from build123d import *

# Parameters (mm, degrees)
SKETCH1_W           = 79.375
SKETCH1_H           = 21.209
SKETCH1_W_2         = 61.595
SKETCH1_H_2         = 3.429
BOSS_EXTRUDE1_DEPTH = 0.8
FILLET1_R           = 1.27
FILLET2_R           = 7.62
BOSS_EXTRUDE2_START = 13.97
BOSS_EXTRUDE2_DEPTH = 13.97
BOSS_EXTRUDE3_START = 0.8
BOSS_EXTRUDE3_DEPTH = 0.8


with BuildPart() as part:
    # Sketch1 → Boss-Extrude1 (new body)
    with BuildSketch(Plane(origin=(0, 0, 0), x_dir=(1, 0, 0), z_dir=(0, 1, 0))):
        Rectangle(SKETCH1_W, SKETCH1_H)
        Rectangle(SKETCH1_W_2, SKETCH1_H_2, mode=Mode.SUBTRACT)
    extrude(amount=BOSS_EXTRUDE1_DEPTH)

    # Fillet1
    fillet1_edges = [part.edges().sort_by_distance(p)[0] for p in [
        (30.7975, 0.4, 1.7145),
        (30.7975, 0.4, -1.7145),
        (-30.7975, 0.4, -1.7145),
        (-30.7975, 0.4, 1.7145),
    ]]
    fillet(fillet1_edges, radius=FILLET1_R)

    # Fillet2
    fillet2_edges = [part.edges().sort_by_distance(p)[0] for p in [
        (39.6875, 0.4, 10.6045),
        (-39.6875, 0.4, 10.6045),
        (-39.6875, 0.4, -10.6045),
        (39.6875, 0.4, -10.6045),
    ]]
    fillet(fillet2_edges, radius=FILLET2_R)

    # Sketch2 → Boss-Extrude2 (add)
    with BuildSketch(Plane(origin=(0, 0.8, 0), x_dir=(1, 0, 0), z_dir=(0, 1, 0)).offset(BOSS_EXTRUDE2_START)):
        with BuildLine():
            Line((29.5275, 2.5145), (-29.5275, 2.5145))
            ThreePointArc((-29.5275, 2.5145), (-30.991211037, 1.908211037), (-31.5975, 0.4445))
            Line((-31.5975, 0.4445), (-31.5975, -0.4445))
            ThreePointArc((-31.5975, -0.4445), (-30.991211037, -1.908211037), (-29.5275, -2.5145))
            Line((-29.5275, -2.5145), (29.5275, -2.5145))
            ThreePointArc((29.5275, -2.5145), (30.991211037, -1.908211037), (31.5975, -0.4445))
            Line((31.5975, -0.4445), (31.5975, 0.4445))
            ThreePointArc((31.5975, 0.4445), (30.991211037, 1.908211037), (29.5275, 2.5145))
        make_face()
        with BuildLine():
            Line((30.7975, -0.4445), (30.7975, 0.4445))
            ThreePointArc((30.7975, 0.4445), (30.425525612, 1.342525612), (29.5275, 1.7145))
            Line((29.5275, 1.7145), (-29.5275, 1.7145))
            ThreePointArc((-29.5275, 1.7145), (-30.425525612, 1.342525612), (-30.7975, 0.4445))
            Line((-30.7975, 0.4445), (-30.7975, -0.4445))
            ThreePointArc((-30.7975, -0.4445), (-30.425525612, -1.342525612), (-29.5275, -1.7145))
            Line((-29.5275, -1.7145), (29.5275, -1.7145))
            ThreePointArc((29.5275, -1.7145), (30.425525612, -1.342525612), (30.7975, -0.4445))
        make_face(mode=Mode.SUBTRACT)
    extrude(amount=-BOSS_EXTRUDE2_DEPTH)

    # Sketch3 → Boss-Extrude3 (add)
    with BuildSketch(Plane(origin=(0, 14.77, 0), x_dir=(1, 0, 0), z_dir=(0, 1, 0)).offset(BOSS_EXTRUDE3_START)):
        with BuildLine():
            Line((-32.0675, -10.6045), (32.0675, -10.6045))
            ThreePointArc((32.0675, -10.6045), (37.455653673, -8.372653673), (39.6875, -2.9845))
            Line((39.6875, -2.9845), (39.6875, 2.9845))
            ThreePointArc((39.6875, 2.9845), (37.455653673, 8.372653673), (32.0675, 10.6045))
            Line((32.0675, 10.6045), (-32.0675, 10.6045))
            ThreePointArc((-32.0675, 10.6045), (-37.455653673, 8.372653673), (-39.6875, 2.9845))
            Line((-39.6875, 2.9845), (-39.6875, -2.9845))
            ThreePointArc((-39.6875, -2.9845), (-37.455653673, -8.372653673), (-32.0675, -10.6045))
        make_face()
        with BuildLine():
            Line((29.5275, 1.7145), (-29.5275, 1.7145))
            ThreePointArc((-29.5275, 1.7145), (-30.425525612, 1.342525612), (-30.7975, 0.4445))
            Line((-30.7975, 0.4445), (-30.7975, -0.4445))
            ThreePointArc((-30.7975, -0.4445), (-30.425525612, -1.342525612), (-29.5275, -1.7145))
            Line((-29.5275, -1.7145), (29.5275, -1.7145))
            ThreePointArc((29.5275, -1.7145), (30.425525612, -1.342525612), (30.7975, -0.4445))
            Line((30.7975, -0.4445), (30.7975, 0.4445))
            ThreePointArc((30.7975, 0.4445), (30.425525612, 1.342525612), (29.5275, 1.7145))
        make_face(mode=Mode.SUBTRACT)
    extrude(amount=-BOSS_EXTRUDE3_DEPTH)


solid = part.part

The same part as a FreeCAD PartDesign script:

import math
import FreeCAD as App
import Part
import Sketcher

V = App.Vector
Q = App.Units.Quantity


def edges_at(feature, points):
    """Names of the edges that pass closest to the given points."""
    edges = feature.Shape.Edges
    near = lambda p: min(range(len(edges)), key=lambda i: edges[i].distToShape(Part.Vertex(*p))[0])
    return sorted({f"Edge{near(p) + 1}" for p in points})

doc = App.newDocument("Part")
body = doc.addObject("PartDesign::Body", "Body")

sketch1 = body.newObject("Sketcher::SketchObject", "Sketch")
sketch1.AttachmentSupport = (doc.getObject("XZ_Plane"), [""])
sketch1.MapMode = "FlatFace"
sketch1.addGeometry([
    Part.LineSegment(V(-39.6875, -10.6045, 0), V(-39.6875, 10.6045, 0)),
    Part.LineSegment(V(-39.6875, 10.6045, 0), V(39.6875, 10.6045, 0)),
    Part.LineSegment(V(39.6875, 10.6045, 0), V(39.6875, -10.6045, 0)),
    Part.LineSegment(V(39.6875, -10.6045, 0), V(-39.6875, -10.6045, 0)),
    Part.LineSegment(V(30.7975, 1.7145, 0), V(-30.7975, 1.7145, 0)),
    Part.LineSegment(V(-30.7975, 1.7145, 0), V(-30.7975, -1.7145, 0)),
    Part.LineSegment(V(-30.7975, -1.7145, 0), V(30.7975, -1.7145, 0)),
    Part.LineSegment(V(30.7975, -1.7145, 0), V(30.7975, 1.7145, 0)),
], False)
sketch1.addConstraint([
    Sketcher.Constraint("Coincident", 0, 2, 1, 1),
    Sketcher.Constraint("Coincident", 1, 2, 2, 1),
    Sketcher.Constraint("Coincident", 2, 2, 3, 1),
    Sketcher.Constraint("Coincident", 3, 2, 0, 1),
    Sketcher.Constraint("Coincident", 4, 2, 5, 1),
    Sketcher.Constraint("Coincident", 5, 2, 6, 1),
    Sketcher.Constraint("Coincident", 6, 2, 7, 1),
    Sketcher.Constraint("Coincident", 7, 2, 4, 1),
    Sketcher.Constraint("Vertical", 0),
    Sketcher.Constraint("Horizontal", 1),
    Sketcher.Constraint("Vertical", 2),
    Sketcher.Constraint("Horizontal", 3),
    Sketcher.Constraint("Horizontal", 4),
    Sketcher.Constraint("Vertical", 5),
    Sketcher.Constraint("Horizontal", 6),
    Sketcher.Constraint("Vertical", 7),
    Sketcher.Constraint("Symmetric", 0, 2, 2, 2, -1, 1),
    Sketcher.Constraint("Symmetric", 4, 2, 6, 2, -1, 1),
    Sketcher.Constraint("DistanceX", 1, 1, 1, 2, Q("3.125 in")),
    Sketcher.Constraint("DistanceX", 4, 2, 4, 1, Q("2.425 in")),
    Sketcher.Constraint("DistanceY", 0, 1, 0, 2, Q("0.835 in")),
    Sketcher.Constraint("DistanceY", 5, 2, 5, 1, Q("0.135 in")),
])
pad1 = body.newObject("PartDesign::Pad", "Pad")
pad1.Profile = sketch1
pad1.Length = 0.8
pad1.Reversed = True
doc.recompute()

fillet = body.newObject("PartDesign::Fillet", "Fillet")
fillet.Base = (pad1, edges_at(pad1, [
    (30.797, 0.4, 1.714),
    (30.797, 0.4, -1.714),
    (-30.797, 0.4, -1.714),
    (-30.797, 0.4, 1.714),
]))
fillet.Radius = Q("0.05 in")
doc.recompute()

fillet2 = body.newObject("PartDesign::Fillet", "Fillet001")
fillet2.Base = (fillet, edges_at(fillet, [
    (39.688, 0.4, 10.604),
    (-39.688, 0.4, 10.604),
    (-39.688, 0.4, -10.604),
    (39.688, 0.4, -10.604),
]))
fillet2.Radius = Q("0.3 in")

sketch2 = body.newObject("Sketcher::SketchObject", "Sketch001")
sketch2.AttachmentSupport = (doc.getObject("XZ_Plane"), [""])
sketch2.MapMode = "FlatFace"
sketch2.AttachmentOffset = App.Placement(V(0, 0, -14.77), App.Rotation())
sketch2.addGeometry([
    Part.LineSegment(V(29.5275, -2.5145, 0), V(-29.5275, -2.5145, 0)),
    Part.ArcOfCircle(Part.Circle(V(-29.5275, -0.4445, 0), V(0, 0, 1), 2.07), math.radians(180), math.radians(270)),
    Part.LineSegment(V(-31.5975, -0.4445, 0), V(-31.5975, 0.4445, 0)),
    Part.ArcOfCircle(Part.Circle(V(-29.5275, 0.4445, 0), V(0, 0, 1), 2.07), math.radians(90), math.radians(180)),
    Part.LineSegment(V(-29.5275, 2.5145, 0), V(29.5275, 2.5145, 0)),
    Part.ArcOfCircle(Part.Circle(V(29.5275, 0.4445, 0), V(0, 0, 1), 2.07), math.radians(0), math.radians(90)),
    Part.LineSegment(V(31.5975, 0.4445, 0), V(31.5975, -0.4445, 0)),
    Part.ArcOfCircle(Part.Circle(V(29.5275, -0.4445, 0), V(0, 0, 1), 2.07), math.radians(-90), math.radians(0)),
    Part.LineSegment(V(30.7975, -0.4445, 0), V(30.7975, 0.4445, 0)),
    Part.ArcOfCircle(Part.Circle(V(29.5275, 0.4445, 0), V(0, 0, 1), 1.27), math.radians(0), math.radians(90)),
    Part.LineSegment(V(29.5275, 1.7145, 0), V(-29.5275, 1.7145, 0)),
    Part.ArcOfCircle(Part.Circle(V(-29.5275, 0.4445, 0), V(0, 0, 1), 1.27), math.radians(90), math.radians(180)),
    Part.LineSegment(V(-30.7975, 0.4445, 0), V(-30.7975, -0.4445, 0)),
    Part.ArcOfCircle(Part.Circle(V(-29.5275, -0.4445, 0), V(0, 0, 1), 1.27), math.radians(180), math.radians(270)),
    Part.LineSegment(V(-29.5275, -1.7145, 0), V(29.5275, -1.7145, 0)),
    Part.ArcOfCircle(Part.Circle(V(29.5275, -0.4445, 0), V(0, 0, 1), 1.27), math.radians(-90), math.radians(0)),
], False)
sketch2.addConstraint([
    Sketcher.Constraint("Tangent", 0, 2, 1, 2),
    Sketcher.Constraint("Tangent", 1, 1, 2, 1),
    Sketcher.Constraint("Tangent", 2, 2, 3, 2),
    Sketcher.Constraint("Tangent", 3, 1, 4, 1),
    Sketcher.Constraint("Tangent", 4, 2, 5, 2),
    Sketcher.Constraint("Tangent", 5, 1, 6, 1),
    Sketcher.Constraint("Tangent", 6, 2, 7, 2),
    Sketcher.Constraint("Tangent", 7, 1, 0, 1),
    Sketcher.Constraint("Tangent", 8, 2, 9, 1),
    Sketcher.Constraint("Tangent", 9, 2, 10, 1),
    Sketcher.Constraint("Tangent", 10, 2, 11, 1),
    Sketcher.Constraint("Tangent", 11, 2, 12, 1),
    Sketcher.Constraint("Tangent", 12, 2, 13, 1),
    Sketcher.Constraint("Tangent", 13, 2, 14, 1),
    Sketcher.Constraint("Tangent", 14, 2, 15, 1),
    Sketcher.Constraint("Tangent", 15, 2, 8, 1),
    Sketcher.Constraint("Horizontal", 0),
    Sketcher.Constraint("Vertical", 2),
    Sketcher.Constraint("Horizontal", 4),
    Sketcher.Constraint("Vertical", 6),
    Sketcher.Constraint("Vertical", 8),
    Sketcher.Constraint("Horizontal", 10),
    Sketcher.Constraint("Vertical", 12),
    Sketcher.Constraint("Horizontal", 14),
    Sketcher.Constraint("Coincident", 9, 3, 5, 3),
    Sketcher.Constraint("Coincident", 11, 3, 3, 3),
    Sketcher.Constraint("Coincident", 13, 3, 1, 3),
    Sketcher.Constraint("Equal", 1, 3),
    Sketcher.Constraint("Equal", 3, 5),
    Sketcher.Constraint("Equal", 5, 7),
    Sketcher.Constraint("Equal", 13, 15),
    Sketcher.Constraint("Symmetric", 1, 3, 5, 3, -1, 1),
    Sketcher.Constraint("Radius", 9, Q("0.05 in")),
    Sketcher.Constraint("DistanceX", 0, 2, 0, 1, Q("2.325 in")),
    Sketcher.Constraint("DistanceY", 2, 1, 2, 2, Q("0.035 in")),
    Sketcher.Constraint("Radius", 1, Q("2.07 mm")),
])
pad2 = body.newObject("PartDesign::Pad", "Pad001")
pad2.Profile = sketch2
pad2.Length = Q("0.55 in")

sketch3 = body.newObject("Sketcher::SketchObject", "Sketch002")
sketch3.AttachmentSupport = (doc.getObject("XZ_Plane"), [""])
sketch3.MapMode = "FlatFace"
sketch3.AttachmentOffset = App.Placement(V(0, 0, -15.57), App.Rotation())
sketch3.addGeometry([
    Part.LineSegment(V(-32.0675, 10.6045, 0), V(32.0675, 10.6045, 0)),
    Part.ArcOfCircle(Part.Circle(V(32.0675, 2.9845, 0), V(0, 0, 1), 7.62), math.radians(0), math.radians(90)),
    Part.LineSegment(V(39.6875, 2.9845, 0), V(39.6875, -2.9845, 0)),
    Part.ArcOfCircle(Part.Circle(V(32.0675, -2.9845, 0), V(0, 0, 1), 7.62), math.radians(-90), math.radians(0)),
    Part.LineSegment(V(32.0675, -10.6045, 0), V(-32.0675, -10.6045, 0)),
    Part.ArcOfCircle(Part.Circle(V(-32.0675, -2.9845, 0), V(0, 0, 1), 7.62), math.radians(180), math.radians(270)),
    Part.LineSegment(V(-39.6875, -2.9845, 0), V(-39.6875, 2.9845, 0)),
    Part.ArcOfCircle(Part.Circle(V(-32.0675, 2.9845, 0), V(0, 0, 1), 7.62), math.radians(90), math.radians(180)),
    Part.LineSegment(V(-29.5275, -1.7145, 0), V(29.5275, -1.7145, 0)),
    Part.ArcOfCircle(Part.Circle(V(29.5275, -0.4445, 0), V(0, 0, 1), 1.27), math.radians(-90), math.radians(0)),
    Part.LineSegment(V(30.7975, -0.4445, 0), V(30.7975, 0.4445, 0)),
    Part.ArcOfCircle(Part.Circle(V(29.5275, 0.4445, 0), V(0, 0, 1), 1.27), math.radians(0), math.radians(90)),
    Part.LineSegment(V(29.5275, 1.7145, 0), V(-29.5275, 1.7145, 0)),
    Part.ArcOfCircle(Part.Circle(V(-29.5275, 0.4445, 0), V(0, 0, 1), 1.27), math.radians(90), math.radians(180)),
    Part.LineSegment(V(-30.7975, 0.4445, 0), V(-30.7975, -0.4445, 0)),
    Part.ArcOfCircle(Part.Circle(V(-29.5275, -0.4445, 0), V(0, 0, 1), 1.27), math.radians(180), math.radians(270)),
], False)
sketch3.addConstraint([
    Sketcher.Constraint("Tangent", 0, 2, 1, 2),
    Sketcher.Constraint("Tangent", 1, 1, 2, 1),
    Sketcher.Constraint("Tangent", 2, 2, 3, 2),
    Sketcher.Constraint("Tangent", 3, 1, 4, 1),
    Sketcher.Constraint("Tangent", 4, 2, 5, 2),
    Sketcher.Constraint("Tangent", 5, 1, 6, 1),
    Sketcher.Constraint("Tangent", 6, 2, 7, 2),
    Sketcher.Constraint("Tangent", 7, 1, 0, 1),
    Sketcher.Constraint("Tangent", 8, 2, 9, 1),
    Sketcher.Constraint("Tangent", 9, 2, 10, 1),
    Sketcher.Constraint("Tangent", 10, 2, 11, 1),
    Sketcher.Constraint("Tangent", 11, 2, 12, 1),
    Sketcher.Constraint("Tangent", 12, 2, 13, 1),
    Sketcher.Constraint("Tangent", 13, 2, 14, 1),
    Sketcher.Constraint("Tangent", 14, 2, 15, 1),
    Sketcher.Constraint("Tangent", 15, 2, 8, 1),
    Sketcher.Constraint("Horizontal", 0),
    Sketcher.Constraint("Vertical", 2),
    Sketcher.Constraint("Horizontal", 4),
    Sketcher.Constraint("Vertical", 6),
    Sketcher.Constraint("Horizontal", 8),
    Sketcher.Constraint("Vertical", 10),
    Sketcher.Constraint("Horizontal", 12),
    Sketcher.Constraint("Vertical", 14),
    Sketcher.Constraint("Equal", 1, 3),
    Sketcher.Constraint("Equal", 3, 5),
    Sketcher.Constraint("Equal", 5, 7),
    Sketcher.Constraint("Equal", 9, 11),
    Sketcher.Constraint("Equal", 11, 13),
    Sketcher.Constraint("Equal", 13, 15),
    Sketcher.Constraint("Symmetric", 1, 3, 5, 3, -1, 1),
    Sketcher.Constraint("Symmetric", 9, 3, 13, 3, -1, 1),
    Sketcher.Constraint("Radius", 1, Q("0.3 in")),
    Sketcher.Constraint("Radius", 9, Q("0.05 in")),
    Sketcher.Constraint("DistanceX", 9, 3, 3, 3, Q("0.1 in")),
    Sketcher.Constraint("DistanceY", 3, 3, 9, 3, Q("0.1 in")),
    Sketcher.Constraint("DistanceX", 0, 1, 0, 2, Q("2.525 in")),
    Sketcher.Constraint("DistanceY", 2, 2, 2, 1, Q("0.235 in")),
])
pad3 = body.newObject("PartDesign::Pad", "Pad002")
pad3.Profile = sketch3
pad3.Length = 0.8

doc.recompute()
